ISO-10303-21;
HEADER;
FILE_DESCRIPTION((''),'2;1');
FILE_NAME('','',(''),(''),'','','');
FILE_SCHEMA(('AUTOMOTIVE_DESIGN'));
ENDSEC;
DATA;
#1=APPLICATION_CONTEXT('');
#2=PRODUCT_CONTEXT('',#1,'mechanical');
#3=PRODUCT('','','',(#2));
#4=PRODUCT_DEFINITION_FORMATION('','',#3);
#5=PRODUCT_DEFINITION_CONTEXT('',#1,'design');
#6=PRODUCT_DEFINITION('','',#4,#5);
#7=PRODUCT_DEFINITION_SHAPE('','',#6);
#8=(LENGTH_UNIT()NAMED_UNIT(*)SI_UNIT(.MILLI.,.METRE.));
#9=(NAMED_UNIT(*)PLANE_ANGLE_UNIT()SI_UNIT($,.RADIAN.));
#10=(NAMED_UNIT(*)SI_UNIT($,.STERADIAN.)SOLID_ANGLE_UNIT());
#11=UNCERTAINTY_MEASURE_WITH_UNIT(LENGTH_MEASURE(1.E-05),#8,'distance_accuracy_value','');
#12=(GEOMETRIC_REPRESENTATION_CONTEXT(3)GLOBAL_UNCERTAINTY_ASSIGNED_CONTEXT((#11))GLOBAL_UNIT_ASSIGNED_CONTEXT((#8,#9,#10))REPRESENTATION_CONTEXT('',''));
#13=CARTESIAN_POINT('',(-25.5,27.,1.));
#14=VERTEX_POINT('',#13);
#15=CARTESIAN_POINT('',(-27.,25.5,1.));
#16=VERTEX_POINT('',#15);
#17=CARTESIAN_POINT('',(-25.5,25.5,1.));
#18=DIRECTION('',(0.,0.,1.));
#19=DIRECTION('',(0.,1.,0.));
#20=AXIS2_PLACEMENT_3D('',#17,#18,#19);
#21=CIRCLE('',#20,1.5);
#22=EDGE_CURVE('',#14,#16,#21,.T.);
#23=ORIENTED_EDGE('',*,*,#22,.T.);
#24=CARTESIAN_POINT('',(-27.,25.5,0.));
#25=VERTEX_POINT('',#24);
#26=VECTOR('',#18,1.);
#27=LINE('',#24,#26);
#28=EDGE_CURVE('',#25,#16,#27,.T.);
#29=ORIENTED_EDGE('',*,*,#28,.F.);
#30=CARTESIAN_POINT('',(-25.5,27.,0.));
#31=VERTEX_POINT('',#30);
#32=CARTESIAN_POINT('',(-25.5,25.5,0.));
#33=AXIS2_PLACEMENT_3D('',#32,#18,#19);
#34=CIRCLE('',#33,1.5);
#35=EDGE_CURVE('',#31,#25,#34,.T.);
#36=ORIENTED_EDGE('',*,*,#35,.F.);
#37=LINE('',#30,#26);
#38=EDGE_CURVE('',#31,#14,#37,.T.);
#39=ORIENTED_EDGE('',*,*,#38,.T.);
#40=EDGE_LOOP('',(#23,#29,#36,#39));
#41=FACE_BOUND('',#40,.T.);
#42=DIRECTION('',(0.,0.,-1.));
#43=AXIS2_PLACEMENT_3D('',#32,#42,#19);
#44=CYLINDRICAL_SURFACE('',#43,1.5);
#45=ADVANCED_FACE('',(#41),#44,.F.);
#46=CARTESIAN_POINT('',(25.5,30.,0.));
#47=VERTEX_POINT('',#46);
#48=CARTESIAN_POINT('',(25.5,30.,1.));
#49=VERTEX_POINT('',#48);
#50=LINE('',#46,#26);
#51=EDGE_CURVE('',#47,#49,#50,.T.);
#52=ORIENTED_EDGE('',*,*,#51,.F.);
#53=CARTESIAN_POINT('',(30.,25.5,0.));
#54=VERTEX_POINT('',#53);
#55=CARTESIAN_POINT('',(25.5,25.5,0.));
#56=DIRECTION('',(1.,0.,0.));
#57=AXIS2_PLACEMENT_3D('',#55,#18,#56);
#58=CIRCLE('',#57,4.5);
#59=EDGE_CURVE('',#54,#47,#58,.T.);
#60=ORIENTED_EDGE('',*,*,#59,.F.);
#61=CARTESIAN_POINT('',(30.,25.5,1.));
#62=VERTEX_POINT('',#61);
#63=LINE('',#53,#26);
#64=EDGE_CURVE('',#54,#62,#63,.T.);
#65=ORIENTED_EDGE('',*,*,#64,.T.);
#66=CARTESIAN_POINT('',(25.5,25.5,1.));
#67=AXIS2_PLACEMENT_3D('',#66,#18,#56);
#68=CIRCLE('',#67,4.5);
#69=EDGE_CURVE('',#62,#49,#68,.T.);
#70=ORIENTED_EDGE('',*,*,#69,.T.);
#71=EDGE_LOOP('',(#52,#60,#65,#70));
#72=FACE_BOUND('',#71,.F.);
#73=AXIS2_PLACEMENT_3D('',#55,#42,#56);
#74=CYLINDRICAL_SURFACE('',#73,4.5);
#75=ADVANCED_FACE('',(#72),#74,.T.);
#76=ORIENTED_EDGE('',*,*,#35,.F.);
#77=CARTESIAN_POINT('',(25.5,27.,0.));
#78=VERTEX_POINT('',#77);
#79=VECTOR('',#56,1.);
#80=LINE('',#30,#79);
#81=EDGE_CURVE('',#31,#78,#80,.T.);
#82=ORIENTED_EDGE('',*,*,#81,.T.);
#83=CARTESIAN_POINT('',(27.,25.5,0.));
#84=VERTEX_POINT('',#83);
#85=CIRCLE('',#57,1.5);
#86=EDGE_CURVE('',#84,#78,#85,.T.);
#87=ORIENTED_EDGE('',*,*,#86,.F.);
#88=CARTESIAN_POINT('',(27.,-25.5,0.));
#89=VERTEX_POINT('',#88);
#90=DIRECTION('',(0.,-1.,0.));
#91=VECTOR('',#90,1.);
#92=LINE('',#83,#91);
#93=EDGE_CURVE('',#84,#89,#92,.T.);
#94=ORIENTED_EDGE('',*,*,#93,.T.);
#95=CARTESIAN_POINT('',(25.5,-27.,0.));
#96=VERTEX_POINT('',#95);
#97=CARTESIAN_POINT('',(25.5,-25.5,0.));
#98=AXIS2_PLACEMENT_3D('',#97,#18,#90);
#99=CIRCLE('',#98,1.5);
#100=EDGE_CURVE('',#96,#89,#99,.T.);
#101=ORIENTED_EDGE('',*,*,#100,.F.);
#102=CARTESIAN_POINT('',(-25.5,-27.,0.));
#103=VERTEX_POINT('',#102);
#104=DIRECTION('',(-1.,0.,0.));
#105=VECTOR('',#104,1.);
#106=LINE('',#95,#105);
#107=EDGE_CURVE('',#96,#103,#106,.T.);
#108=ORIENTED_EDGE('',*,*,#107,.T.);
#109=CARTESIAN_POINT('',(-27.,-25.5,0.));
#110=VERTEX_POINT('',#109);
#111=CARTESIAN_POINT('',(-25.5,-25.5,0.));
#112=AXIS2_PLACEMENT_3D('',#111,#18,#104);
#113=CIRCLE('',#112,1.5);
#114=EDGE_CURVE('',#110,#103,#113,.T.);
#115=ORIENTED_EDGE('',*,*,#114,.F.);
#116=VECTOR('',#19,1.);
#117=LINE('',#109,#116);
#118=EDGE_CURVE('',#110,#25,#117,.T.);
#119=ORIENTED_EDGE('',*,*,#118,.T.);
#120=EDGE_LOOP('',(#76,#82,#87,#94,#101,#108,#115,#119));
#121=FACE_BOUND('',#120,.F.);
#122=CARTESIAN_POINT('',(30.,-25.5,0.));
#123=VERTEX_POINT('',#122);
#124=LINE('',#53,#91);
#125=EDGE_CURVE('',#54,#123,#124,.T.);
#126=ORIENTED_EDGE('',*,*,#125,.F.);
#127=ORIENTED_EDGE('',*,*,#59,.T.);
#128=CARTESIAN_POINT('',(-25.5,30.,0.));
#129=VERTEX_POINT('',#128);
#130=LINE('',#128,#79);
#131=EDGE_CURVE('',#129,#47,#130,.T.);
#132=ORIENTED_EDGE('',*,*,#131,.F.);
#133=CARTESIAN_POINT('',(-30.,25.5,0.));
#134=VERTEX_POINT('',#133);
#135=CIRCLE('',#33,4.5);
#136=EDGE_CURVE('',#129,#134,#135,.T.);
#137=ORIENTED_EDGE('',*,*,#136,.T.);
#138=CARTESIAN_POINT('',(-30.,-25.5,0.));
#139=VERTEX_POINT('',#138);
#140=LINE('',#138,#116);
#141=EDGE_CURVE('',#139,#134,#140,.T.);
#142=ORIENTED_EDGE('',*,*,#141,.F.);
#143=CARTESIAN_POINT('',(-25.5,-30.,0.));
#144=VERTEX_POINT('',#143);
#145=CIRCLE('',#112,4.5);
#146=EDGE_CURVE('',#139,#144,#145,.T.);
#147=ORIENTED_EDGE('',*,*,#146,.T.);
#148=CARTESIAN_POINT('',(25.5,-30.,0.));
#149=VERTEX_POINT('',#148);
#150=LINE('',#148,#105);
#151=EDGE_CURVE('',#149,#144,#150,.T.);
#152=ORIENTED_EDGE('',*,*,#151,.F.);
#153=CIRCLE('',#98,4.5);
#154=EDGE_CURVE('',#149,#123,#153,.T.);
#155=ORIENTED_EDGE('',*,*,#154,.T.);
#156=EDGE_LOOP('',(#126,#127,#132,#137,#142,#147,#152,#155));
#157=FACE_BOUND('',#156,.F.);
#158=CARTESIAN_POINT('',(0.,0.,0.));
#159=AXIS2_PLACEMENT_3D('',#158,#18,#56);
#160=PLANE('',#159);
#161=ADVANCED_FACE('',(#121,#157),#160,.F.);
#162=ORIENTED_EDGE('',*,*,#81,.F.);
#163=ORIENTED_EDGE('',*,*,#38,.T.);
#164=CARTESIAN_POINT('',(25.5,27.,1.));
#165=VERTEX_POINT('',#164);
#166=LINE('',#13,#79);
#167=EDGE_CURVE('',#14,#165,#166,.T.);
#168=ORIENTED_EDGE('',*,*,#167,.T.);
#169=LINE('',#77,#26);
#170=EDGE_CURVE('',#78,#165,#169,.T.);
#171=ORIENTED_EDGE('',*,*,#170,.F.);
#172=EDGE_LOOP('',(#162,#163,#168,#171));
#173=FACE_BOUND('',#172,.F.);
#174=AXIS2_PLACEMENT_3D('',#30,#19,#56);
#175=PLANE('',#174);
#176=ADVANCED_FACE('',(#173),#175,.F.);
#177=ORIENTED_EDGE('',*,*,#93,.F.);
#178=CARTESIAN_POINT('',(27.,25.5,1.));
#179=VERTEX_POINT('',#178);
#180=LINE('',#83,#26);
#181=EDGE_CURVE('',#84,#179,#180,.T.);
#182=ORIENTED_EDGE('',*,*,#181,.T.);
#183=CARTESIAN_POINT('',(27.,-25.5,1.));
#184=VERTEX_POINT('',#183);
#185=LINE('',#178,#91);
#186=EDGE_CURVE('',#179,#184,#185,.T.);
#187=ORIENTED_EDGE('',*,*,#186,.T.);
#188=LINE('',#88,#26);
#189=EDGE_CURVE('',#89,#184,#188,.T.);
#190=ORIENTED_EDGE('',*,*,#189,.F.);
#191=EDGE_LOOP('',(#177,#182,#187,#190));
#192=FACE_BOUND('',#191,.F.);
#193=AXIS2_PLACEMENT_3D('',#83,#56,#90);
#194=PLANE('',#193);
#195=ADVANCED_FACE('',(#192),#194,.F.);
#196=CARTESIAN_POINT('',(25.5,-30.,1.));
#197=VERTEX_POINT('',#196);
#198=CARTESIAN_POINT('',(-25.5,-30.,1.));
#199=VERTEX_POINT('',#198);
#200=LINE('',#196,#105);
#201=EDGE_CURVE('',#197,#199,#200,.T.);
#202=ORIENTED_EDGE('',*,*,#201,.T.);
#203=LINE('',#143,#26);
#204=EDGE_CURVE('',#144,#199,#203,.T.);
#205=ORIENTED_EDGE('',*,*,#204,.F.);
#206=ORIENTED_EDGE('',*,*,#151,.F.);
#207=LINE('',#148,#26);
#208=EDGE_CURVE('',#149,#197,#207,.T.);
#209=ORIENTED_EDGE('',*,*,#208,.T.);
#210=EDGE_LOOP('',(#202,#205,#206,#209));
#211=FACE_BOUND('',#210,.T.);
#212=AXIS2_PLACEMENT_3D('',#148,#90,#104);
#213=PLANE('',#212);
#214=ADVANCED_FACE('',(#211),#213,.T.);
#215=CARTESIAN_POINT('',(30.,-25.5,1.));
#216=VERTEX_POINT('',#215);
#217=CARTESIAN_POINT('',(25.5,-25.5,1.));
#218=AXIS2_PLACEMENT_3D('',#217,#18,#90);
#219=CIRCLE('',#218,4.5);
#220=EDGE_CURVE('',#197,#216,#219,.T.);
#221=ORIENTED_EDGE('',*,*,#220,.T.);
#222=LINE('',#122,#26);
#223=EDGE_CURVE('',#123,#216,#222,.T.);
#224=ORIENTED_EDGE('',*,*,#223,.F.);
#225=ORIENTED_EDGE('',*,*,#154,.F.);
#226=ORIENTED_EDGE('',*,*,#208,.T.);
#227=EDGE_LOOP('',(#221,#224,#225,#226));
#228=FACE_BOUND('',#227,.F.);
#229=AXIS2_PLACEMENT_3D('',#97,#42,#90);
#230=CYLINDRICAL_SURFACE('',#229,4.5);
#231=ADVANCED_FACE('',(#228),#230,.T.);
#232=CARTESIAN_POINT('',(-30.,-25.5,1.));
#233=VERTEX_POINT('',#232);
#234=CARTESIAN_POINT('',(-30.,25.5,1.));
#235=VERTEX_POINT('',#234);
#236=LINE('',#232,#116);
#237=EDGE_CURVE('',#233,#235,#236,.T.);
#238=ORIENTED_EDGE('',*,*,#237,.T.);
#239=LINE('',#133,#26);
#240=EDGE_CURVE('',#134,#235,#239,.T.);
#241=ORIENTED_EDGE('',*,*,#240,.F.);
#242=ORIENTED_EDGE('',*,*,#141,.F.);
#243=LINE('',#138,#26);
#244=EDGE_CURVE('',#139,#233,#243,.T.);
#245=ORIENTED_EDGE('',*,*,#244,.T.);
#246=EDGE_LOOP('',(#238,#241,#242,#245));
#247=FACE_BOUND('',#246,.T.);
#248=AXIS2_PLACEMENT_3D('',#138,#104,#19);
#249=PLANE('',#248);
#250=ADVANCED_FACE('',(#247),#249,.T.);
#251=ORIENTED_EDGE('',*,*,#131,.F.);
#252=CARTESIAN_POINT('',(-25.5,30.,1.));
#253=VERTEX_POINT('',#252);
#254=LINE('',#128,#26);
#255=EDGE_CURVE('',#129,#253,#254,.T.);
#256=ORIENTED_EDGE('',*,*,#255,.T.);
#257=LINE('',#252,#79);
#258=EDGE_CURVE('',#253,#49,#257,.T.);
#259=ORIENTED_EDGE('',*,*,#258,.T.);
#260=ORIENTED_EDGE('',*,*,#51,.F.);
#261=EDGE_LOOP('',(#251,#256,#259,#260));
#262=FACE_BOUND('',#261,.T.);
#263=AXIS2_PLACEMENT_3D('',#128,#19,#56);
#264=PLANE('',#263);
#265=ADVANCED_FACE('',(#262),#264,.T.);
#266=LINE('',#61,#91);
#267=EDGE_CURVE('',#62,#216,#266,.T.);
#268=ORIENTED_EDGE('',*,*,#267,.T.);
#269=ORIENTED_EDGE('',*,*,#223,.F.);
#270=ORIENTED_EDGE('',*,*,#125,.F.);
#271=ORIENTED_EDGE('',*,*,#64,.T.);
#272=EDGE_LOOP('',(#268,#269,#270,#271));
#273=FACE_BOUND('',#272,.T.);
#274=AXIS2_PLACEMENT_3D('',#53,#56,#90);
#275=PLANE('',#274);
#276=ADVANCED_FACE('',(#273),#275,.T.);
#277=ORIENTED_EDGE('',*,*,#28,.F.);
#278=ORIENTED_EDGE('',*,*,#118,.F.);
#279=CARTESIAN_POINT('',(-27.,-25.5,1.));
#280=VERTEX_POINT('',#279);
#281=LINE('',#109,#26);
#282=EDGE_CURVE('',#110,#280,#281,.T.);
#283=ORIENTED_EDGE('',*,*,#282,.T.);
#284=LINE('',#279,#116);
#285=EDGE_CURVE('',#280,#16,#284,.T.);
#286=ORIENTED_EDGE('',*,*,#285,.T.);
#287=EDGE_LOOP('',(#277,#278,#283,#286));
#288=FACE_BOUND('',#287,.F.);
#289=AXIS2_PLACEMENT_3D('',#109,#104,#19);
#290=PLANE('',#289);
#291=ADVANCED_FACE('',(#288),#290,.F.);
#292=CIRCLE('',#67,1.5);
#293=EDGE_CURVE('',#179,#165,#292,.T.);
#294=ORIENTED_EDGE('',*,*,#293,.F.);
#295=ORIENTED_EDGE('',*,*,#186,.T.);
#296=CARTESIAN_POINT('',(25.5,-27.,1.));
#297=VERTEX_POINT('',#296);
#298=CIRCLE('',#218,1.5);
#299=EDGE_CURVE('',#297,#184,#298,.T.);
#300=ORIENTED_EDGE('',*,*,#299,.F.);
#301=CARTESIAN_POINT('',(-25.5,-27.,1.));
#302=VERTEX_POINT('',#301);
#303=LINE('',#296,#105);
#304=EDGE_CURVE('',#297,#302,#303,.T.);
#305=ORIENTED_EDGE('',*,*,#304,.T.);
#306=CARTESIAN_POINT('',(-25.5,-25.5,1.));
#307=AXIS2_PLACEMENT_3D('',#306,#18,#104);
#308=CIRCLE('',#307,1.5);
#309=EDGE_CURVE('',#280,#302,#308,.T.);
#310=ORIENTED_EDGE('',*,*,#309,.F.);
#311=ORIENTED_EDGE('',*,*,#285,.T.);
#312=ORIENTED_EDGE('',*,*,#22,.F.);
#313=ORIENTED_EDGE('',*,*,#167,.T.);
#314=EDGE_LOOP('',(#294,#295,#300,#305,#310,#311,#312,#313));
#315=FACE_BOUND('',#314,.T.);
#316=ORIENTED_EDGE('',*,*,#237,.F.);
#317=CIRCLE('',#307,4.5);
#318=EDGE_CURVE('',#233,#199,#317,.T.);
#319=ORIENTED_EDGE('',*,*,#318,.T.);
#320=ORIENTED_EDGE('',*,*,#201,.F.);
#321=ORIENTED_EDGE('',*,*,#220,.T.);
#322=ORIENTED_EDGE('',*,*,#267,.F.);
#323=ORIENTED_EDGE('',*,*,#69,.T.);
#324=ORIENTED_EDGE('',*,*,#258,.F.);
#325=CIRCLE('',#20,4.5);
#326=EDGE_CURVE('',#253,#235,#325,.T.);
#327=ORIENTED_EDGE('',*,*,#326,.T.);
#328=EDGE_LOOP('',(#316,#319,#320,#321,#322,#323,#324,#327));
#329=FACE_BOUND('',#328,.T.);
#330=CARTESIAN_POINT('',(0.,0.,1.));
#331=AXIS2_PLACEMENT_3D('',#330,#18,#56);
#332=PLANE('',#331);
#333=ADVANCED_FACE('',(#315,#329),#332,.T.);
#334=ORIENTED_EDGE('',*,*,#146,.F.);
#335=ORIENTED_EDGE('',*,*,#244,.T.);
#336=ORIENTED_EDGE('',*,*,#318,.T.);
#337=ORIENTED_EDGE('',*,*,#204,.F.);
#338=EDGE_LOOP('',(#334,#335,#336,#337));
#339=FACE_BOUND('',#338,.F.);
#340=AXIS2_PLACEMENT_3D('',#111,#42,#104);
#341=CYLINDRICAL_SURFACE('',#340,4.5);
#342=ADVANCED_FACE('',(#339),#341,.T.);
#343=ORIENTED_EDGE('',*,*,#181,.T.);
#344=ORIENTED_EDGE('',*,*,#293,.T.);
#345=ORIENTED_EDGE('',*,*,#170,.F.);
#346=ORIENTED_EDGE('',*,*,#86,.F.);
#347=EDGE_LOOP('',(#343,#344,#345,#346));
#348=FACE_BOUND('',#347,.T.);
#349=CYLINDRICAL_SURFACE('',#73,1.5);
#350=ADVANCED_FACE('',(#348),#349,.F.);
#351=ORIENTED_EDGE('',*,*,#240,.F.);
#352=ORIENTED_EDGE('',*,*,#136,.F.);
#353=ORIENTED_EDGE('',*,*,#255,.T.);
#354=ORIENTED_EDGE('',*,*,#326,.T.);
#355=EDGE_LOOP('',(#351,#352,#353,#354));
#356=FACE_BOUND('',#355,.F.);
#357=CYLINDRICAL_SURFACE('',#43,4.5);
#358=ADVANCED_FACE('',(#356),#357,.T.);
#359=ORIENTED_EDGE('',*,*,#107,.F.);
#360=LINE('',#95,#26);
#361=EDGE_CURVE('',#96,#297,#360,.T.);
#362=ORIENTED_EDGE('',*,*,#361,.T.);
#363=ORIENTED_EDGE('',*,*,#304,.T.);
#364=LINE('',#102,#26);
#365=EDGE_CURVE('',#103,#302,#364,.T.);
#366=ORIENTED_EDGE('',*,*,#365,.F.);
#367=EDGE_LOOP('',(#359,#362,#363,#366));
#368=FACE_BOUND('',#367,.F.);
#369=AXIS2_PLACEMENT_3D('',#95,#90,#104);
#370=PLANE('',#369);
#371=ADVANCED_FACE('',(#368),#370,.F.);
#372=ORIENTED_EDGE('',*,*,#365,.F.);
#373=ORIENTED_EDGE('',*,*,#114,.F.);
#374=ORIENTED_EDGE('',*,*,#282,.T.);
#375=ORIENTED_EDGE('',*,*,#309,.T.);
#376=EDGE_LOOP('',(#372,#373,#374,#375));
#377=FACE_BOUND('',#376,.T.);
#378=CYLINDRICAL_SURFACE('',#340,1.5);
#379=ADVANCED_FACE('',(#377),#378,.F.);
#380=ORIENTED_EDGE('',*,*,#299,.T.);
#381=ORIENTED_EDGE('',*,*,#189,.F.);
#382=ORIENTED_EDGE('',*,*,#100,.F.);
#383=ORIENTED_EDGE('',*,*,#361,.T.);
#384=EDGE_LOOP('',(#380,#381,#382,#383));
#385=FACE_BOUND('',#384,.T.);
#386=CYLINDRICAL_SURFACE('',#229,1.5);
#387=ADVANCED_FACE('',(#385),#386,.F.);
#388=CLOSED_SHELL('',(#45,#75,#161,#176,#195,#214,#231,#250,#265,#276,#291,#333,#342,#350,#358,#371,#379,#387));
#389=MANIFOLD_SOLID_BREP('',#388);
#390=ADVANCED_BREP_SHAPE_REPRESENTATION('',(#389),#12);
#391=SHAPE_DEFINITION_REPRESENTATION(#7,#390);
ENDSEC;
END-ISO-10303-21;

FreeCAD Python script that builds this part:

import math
import FreeCAD as App
import Part
import Sketcher

V = App.Vector
Q = App.Units.Quantity

doc = App.newDocument("Part")
body = doc.addObject("PartDesign::Body", "Body")

# Sketch on XY plane
sketch1 = body.newObject("Sketcher::SketchObject", "Sketch")
sketch1.AttachmentSupport = (doc.getObject("XY_Plane"), [""])
sketch1.MapMode = "FlatFace"
sketch1.addGeometry(Part.LineSegment(V(-30, 25.5, 0), V(-30, -25.5, 0)), False)
sketch1.addGeometry(Part.ArcOfCircle(Part.Circle(V(-25.5, -25.5, 0), V(0, 0, 1), 4.5), math.radians(180), math.radians(270)), False)
sketch1.addGeometry(Part.LineSegment(V(-25.5, -30, 0), V(25.5, -30, 0)), False)
sketch1.addGeometry(Part.ArcOfCircle(Part.Circle(V(25.5, -25.5, 0), V(0, 0, 1), 4.5), math.radians(-90), math.radians(0)), False)
sketch1.addGeometry(Part.LineSegment(V(30, -25.5, 0), V(30, 25.5, 0)), False)
sketch1.addGeometry(Part.ArcOfCircle(Part.Circle(V(25.5, 25.5, 0), V(0, 0, 1), 4.5), math.radians(0), math.radians(90)), False)
sketch1.addGeometry(Part.LineSegment(V(25.5, 30, 0), V(-25.5, 30, 0)), False)
sketch1.addGeometry(Part.ArcOfCircle(Part.Circle(V(-25.5, 25.5, 0), V(0, 0, 1), 4.5), math.radians(90), math.radians(180)), False)
sketch1.addGeometry(Part.ArcOfCircle(Part.Circle(V(-25.5, 25.5, 0), V(0, 0, 1), 1.5), math.radians(90), math.radians(180)), False)
sketch1.addGeometry(Part.LineSegment(V(-25.5, 27, 0), V(25.5, 27, 0)), False)
sketch1.addGeometry(Part.ArcOfCircle(Part.Circle(V(25.5, 25.5, 0), V(0, 0, 1), 1.5), math.radians(0), math.radians(90)), False)
sketch1.addGeometry(Part.LineSegment(V(27, 25.5, 0), V(27, -25.5, 0)), False)
sketch1.addGeometry(Part.ArcOfCircle(Part.Circle(V(25.5, -25.5, 0), V(0, 0, 1), 1.5), math.radians(-90), math.radians(0)), False)
sketch1.addGeometry(Part.LineSegment(V(25.5, -27, 0), V(-25.5, -27, 0)), False)
sketch1.addGeometry(Part.ArcOfCircle(Part.Circle(V(-25.5, -25.5, 0), V(0, 0, 1), 1.5), math.radians(180), math.radians(270)), False)
sketch1.addGeometry(Part.LineSegment(V(-27, -25.5, 0), V(-27, 25.5, 0)), False)
sketch1.addConstraint(Sketcher.Constraint("Tangent", 0, 2, 1, 1))
sketch1.addConstraint(Sketcher.Constraint("Tangent", 1, 2, 2, 1))
sketch1.addConstraint(Sketcher.Constraint("Tangent", 2, 2, 3, 1))
sketch1.addConstraint(Sketcher.Constraint("Tangent", 3, 2, 4, 1))
sketch1.addConstraint(Sketcher.Constraint("Tangent", 4, 2, 5, 1))
sketch1.addConstraint(Sketcher.Constraint("Tangent", 5, 2, 6, 1))
sketch1.addConstraint(Sketcher.Constraint("Tangent", 6, 2, 7, 1))
sketch1.addConstraint(Sketcher.Constraint("Tangent", 7, 2, 0, 1))
sketch1.addConstraint(Sketcher.Constraint("Tangent", 8, 1, 9, 1))
sketch1.addConstraint(Sketcher.Constraint("Tangent", 9, 2, 10, 2))
sketch1.addConstraint(Sketcher.Constraint("Tangent", 10, 1, 11, 1))
sketch1.addConstraint(Sketcher.Constraint("Tangent", 11, 2, 12, 2))
sketch1.addConstraint(Sketcher.Constraint("Tangent", 12, 1, 13, 1))
sketch1.addConstraint(Sketcher.Constraint("Tangent", 13, 2, 14, 2))
sketch1.addConstraint(Sketcher.Constraint("Tangent", 14, 1, 15, 1))
sketch1.addConstraint(Sketcher.Constraint("Tangent", 15, 2, 8, 2))
sketch1.addConstraint(Sketcher.Constraint("Vertical", 0))
sketch1.addConstraint(Sketcher.Constraint("Horizontal", 2))
sketch1.addConstraint(Sketcher.Constraint("Vertical", 4))
sketch1.addConstraint(Sketcher.Constraint("Horizontal", 6))
sketch1.addConstraint(Sketcher.Constraint("Horizontal", 9))
sketch1.addConstraint(Sketcher.Constraint("Vertical", 11))
sketch1.addConstraint(Sketcher.Constraint("Horizontal", 13))
sketch1.addConstraint(Sketcher.Constraint("Vertical", 15))
sketch1.addConstraint(Sketcher.Constraint("Coincident", 8, 3, 7, 3))
sketch1.addConstraint(Sketcher.Constraint("Coincident", 10, 3, 5, 3))
sketch1.addConstraint(Sketcher.Constraint("Coincident", 12, 3, 3, 3))
sketch1.addConstraint(Sketcher.Constraint("Equal", 1, 3))
sketch1.addConstraint(Sketcher.Constraint("Equal", 3, 5))
sketch1.addConstraint(Sketcher.Constraint("Equal", 5, 7))
sketch1.addConstraint(Sketcher.Constraint("Equal", 12, 14))
sketch1.addConstraint(Sketcher.Constraint("Symmetric", 1, 3, 5, 3, -1, 1))
sketch1.addConstraint(Sketcher.Constraint("Equal", 13, 0))
sketch1.addConstraint(Sketcher.Constraint("Radius", 1, Q("4.5 mm")))
sketch1.addConstraint(Sketcher.Constraint("Radius", 8, Q("1.5 mm")))
sketch1.addConstraint(Sketcher.Constraint("DistanceX", 2, 1, 2, 2, Q("51 mm")))
pad1 = body.newObject("PartDesign::Pad", "Pad")
pad1.Profile = sketch1
pad1.Length = 1

doc.recompute()
